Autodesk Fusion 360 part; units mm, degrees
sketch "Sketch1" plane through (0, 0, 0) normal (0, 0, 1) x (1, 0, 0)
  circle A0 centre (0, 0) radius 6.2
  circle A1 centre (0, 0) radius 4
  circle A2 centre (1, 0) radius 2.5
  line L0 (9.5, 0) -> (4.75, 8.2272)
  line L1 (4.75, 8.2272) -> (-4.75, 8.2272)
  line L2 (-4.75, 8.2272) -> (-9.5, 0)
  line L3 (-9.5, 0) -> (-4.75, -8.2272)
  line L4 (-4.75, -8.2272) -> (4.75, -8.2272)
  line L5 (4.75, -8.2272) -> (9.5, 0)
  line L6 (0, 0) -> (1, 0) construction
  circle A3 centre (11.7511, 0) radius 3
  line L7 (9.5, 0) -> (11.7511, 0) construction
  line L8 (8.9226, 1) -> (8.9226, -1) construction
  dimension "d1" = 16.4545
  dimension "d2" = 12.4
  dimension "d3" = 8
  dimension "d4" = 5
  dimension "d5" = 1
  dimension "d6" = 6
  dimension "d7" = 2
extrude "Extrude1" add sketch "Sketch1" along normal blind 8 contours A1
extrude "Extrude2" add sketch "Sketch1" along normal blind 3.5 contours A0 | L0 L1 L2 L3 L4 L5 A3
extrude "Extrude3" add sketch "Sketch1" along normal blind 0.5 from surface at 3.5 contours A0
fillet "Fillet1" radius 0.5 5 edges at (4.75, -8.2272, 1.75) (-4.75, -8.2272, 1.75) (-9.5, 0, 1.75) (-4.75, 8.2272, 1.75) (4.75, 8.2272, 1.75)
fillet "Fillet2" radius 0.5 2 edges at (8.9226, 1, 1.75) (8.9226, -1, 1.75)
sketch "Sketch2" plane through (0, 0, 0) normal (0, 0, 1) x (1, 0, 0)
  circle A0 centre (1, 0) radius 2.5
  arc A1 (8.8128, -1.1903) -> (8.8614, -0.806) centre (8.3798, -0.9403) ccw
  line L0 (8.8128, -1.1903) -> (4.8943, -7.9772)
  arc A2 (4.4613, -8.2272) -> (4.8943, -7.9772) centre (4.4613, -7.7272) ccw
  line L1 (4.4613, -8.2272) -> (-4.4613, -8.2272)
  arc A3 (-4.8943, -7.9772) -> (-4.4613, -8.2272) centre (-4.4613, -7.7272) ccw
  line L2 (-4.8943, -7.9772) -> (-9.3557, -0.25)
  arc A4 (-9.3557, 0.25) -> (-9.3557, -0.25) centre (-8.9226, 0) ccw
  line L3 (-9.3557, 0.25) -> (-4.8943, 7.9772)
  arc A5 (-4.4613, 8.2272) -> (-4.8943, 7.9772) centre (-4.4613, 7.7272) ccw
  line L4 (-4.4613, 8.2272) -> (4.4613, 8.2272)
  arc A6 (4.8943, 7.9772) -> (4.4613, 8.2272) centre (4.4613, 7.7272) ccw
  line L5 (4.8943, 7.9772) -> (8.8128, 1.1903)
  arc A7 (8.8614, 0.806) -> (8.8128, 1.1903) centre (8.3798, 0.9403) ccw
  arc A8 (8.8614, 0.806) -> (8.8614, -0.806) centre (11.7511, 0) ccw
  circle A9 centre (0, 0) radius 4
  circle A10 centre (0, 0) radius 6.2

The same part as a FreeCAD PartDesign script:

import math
import FreeCAD as App
import Part
import Sketcher

V = App.Vector
Q = App.Units.Quantity


def edges_at(feature, points):
    """Names of the edges that pass closest to the given points."""
    edges = feature.Shape.Edges
    near = lambda p: min(range(len(edges)), key=lambda i: edges[i].distToShape(Part.Vertex(*p))[0])
    return sorted({f"Edge{near(p) + 1}" for p in points})

doc = App.newDocument("Part")
body = doc.addObject("PartDesign::Body", "Body")

# Sketch on XY plane
sketch1 = body.newObject("Sketcher::SketchObject", "Sketch")
sketch1.AttachmentSupport = (doc.getObject("XY_Plane"), [""])
sketch1.MapMode = "FlatFace"
sketch1.addGeometry([
    Part.Circle(V(0, 0, 0), V(0, 0, 1), 4),
    Part.Circle(V(1, 0, 0), V(0, 0, 1), 2.5),
], False)
sketch1.addConstraint([
    Sketcher.Constraint("Coincident", 0, 3, -1, 1),
    Sketcher.Constraint("PointOnObject", 1, 3, -1),
    Sketcher.Constraint("Diameter", 0, Q("8 mm")),
    Sketcher.Constraint("Diameter", 1, Q("5 mm")),
    Sketcher.Constraint("DistanceX", -1, 1, 1, 3, Q("1 mm")),
])
pad1 = body.newObject("PartDesign::Pad", "Pad")
pad1.Profile = sketch1
pad1.Length = 8

# Sketch on XY plane
sketch2 = body.newObject("Sketcher::SketchObject", "Sketch001")
sketch2.AttachmentSupport = (doc.getObject("XY_Plane"), [""])
sketch2.MapMode = "FlatFace"
sketch2.addGeometry([
    Part.ArcOfCircle(Part.Circle(V(11.8, 0, 0), V(0, 0, 1), 3), math.radians(161), math.radians(199)),  # 0
    Part.LineSegment(V(8.9, 1, 0), V(4.8, 8.2, 0)),  # 1
    Part.LineSegment(V(4.8, 8.2, 0), V(-4.8, 8.2, 0)),  # 2
    Part.LineSegment(V(-4.8, 8.2, 0), V(-9.5, 0, 0)),  # 3
    Part.LineSegment(V(-9.5, 0, 0), V(-4.8, -8.2, 0)),  # 4
    Part.LineSegment(V(-4.8, -8.2, 0), V(4.8, -8.2, 0)),  # 5
    Part.LineSegment(V(4.8, -8.2, 0), V(8.9, -1, 0)),  # 6
    Part.Circle(V(0, 0, 0), V(0, 0, 1), 4),  # 7
], False)
sketch2.addConstraint([
    Sketcher.Constraint("Coincident", 0, 1, 1, 1),
    Sketcher.Constraint("Coincident", 1, 2, 2, 1),
    Sketcher.Constraint("Coincident", 2, 2, 3, 1),
    Sketcher.Constraint("Coincident", 3, 2, 4, 1),
    Sketcher.Constraint("Coincident", 4, 2, 5, 1),
    Sketcher.Constraint("Coincident", 5, 2, 6, 1),
    Sketcher.Constraint("Coincident", 6, 2, 0, 2),
    Sketcher.Constraint("Horizontal", 2),
    Sketcher.Constraint("Horizontal", 5),
    Sketcher.Constraint("Coincident", 7, 3, -1, 1),
    Sketcher.Constraint("Symmetric", 1, 2, 4, 2, -1, 1),
    Sketcher.Constraint("Symmetric", 0, 1, 6, 2, -1),
    Sketcher.Constraint("PointOnObject", 3, 2, -1),
    Sketcher.Constraint("Parallel", 1, 4),
    Sketcher.Constraint("Parallel", 3, 6),
    Sketcher.Constraint("Vertical", 2, 2, 4, 2),
    Sketcher.Constraint("Diameter", 7, Q("8 mm")),
    Sketcher.Constraint("Radius", 0, Q("3 mm")),
    Sketcher.Constraint("DistanceY", -1, 1, 0, 1, Q("1 mm")),
    Sketcher.Constraint("Angle", 1, Q("120.0001 deg")),
    Sketcher.Constraint("DistanceX", 2, 2, 2, 1, Q("9.5 mm")),
    Sketcher.Constraint("Distance", 3, Q("9.5 mm")),
])
pad2 = body.newObject("PartDesign::Pad", "Pad001")
pad2.Profile = sketch2
pad2.Length = 3.5

# Sketch on XY plane
sketch3 = body.newObject("Sketcher::SketchObject", "Sketch002")
sketch3.AttachmentSupport = (doc.getObject("XY_Plane"), [""])
sketch3.MapMode = "FlatFace"
sketch3.AttachmentOffset = App.Placement(V(0, 0, 3.5), App.Rotation())
sketch3.addGeometry([
    Part.Circle(V(0, 0, 0), V(0, 0, 1), 6.2),
    Part.Circle(V(0, 0, 0), V(0, 0, 1), 4),
], False)
sketch3.addConstraint([
    Sketcher.Constraint("Coincident", 0, 3, -1, 1),
    Sketcher.Constraint("Coincident", 1, 3, -1, 1),
    Sketcher.Constraint("Diameter", 1, Q("8 mm")),
    Sketcher.Constraint("Diameter", 0, Q("12.4 mm")),
])
pad3 = body.newObject("PartDesign::Pad", "Pad002")
pad3.Profile = sketch3
pad3.Length = 0.5
doc.recompute()

fillet = body.newObject("PartDesign::Fillet", "Fillet")
fillet.Base = (pad3, edges_at(pad3, [
    (4.75, -8.227, 1.75),
    (-4.75, -8.227, 1.75),
    (-9.5, 0, 1.75),
    (-4.75, 8.227, 1.75),
    (4.75, 8.227, 1.75),
]))
fillet.Radius = 0.5
doc.recompute()

fillet2 = body.newObject("PartDesign::Fillet", "Fillet001")
fillet2.Base = (fillet, edges_at(fillet, [(8.923, 1, 1.75), (8.923, -1, 1.75)]))
fillet2.Radius = 0.5

doc.recompute()
